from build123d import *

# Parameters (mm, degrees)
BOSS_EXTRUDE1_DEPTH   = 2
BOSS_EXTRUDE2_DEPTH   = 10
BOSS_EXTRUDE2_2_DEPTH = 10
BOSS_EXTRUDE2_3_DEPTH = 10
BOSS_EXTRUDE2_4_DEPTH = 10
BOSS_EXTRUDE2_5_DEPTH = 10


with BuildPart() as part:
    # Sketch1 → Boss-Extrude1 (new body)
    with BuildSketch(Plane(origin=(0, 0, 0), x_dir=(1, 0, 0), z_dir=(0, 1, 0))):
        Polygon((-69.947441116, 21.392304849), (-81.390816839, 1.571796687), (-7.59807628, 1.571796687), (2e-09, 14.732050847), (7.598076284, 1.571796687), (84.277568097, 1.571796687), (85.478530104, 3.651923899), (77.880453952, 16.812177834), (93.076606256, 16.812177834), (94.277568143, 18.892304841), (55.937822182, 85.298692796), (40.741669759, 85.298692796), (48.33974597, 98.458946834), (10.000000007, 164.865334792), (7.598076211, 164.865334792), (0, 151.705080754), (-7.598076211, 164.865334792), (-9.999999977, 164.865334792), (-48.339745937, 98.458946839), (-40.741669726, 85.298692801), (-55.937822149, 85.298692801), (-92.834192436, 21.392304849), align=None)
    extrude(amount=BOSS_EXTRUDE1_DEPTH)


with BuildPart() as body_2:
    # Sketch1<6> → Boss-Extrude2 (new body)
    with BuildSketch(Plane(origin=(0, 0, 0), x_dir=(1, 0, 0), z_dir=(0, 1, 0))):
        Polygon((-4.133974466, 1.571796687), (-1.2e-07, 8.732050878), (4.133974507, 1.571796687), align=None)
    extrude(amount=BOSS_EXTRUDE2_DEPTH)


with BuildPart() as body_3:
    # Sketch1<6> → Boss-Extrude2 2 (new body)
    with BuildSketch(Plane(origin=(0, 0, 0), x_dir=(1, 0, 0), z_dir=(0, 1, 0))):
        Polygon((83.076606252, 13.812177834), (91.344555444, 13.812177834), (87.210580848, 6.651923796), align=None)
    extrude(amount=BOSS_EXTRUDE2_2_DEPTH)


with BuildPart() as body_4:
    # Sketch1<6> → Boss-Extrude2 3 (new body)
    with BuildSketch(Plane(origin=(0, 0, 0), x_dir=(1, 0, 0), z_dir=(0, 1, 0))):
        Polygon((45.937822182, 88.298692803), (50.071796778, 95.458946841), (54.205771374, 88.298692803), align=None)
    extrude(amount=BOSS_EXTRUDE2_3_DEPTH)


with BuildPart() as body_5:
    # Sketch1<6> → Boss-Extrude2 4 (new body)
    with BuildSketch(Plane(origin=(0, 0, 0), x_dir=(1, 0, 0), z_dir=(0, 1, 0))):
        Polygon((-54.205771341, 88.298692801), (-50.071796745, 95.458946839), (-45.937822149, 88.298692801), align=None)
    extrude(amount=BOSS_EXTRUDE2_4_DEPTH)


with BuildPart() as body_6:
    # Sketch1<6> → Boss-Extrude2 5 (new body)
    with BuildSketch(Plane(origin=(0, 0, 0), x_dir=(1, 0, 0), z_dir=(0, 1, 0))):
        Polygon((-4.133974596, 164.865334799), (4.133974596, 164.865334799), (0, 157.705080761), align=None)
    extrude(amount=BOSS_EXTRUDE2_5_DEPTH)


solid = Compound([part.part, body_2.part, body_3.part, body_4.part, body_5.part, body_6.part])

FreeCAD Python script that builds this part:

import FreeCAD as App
import Part
import Sketcher

V = App.Vector
Q = App.Units.Quantity


def add_polygon(sketch, points):
    """Adds a closed chain of lines whose ends are joined by coincident constraints."""
    first, n = sketch.GeometryCount, len(points)
    for a, b in zip(points, points[1:] + points[:1]):
        sketch.addGeometry(Part.LineSegment(App.Vector(*a, 0), App.Vector(*b, 0)), False)
    for i in range(n):
        sketch.addConstraint(Sketcher.Constraint("Coincident", first + i, 2, first + (i + 1) % n, 1))

doc = App.newDocument("Part")
params = doc.addObject("Spreadsheet::Sheet", "Params")
for row, (alias, value) in enumerate([
    ("pad1_length", "2 mm"),
    ("pad2_length", "10 mm"),
    ("pad3_length", "10 mm"),
    ("pad4_length", "10 mm"),
    ("pad5_length", "10 mm"),
    ("pad6_length", "10 mm"),
], start=1):
    params.set(f"A{row}", alias)
    params.set(f"B{row}", "=" + value)
    params.setAlias(f"B{row}", alias)

body = doc.addObject("PartDesign::Body", "Body")

sketch1 = body.newObject("Sketcher::SketchObject", "Sketch")
sketch1.AttachmentSupport = (doc.getObject("XZ_Plane"), [""])
sketch1.MapMode = "FlatFace"
add_polygon(sketch1, [(-69.9, -21.4), (-81.4, -1.6), (-7.6, -1.6), (0, -14.7), (7.6, -1.6), (84.3, -1.6), (85.5, -3.7), (77.9, -16.8), (93.1, -16.8), (94.3, -18.9), (55.9, -85.3), (40.7, -85.3), (48.3, -98.5), (10, -164.9), (7.6, -164.9), (0, -151.7), (-7.6, -164.9), (-10, -164.9), (-48.3, -98.5), (-40.7, -85.3), (-55.9, -85.3), (-92.8, -21.4)])
sketch1.addConstraint([
    Sketcher.Constraint("Horizontal", 1),
    Sketcher.Constraint("Horizontal", 4),
    Sketcher.Constraint("Horizontal", 7),
    Sketcher.Constraint("Horizontal", 10),
    Sketcher.Constraint("Horizontal", 13),
    Sketcher.Constraint("Horizontal", 16),
    Sketcher.Constraint("Horizontal", 19),
    Sketcher.Constraint("Horizontal", 21),
    Sketcher.Constraint("Symmetric", 1, 2, 3, 2, -2),
    Sketcher.Constraint("Symmetric", 13, 2, 15, 2, -2),
    Sketcher.Constraint("Symmetric", 11, 2, 17, 2, -2),
    Sketcher.Constraint("Symmetric", 10, 2, 18, 2, -2),
    Sketcher.Constraint("PointOnObject", 2, 2, -2),
    Sketcher.Constraint("PointOnObject", 14, 2, -2),
    Sketcher.Constraint("Parallel", 0, 2),
    Sketcher.Constraint("Parallel", 2, 5),
    Sketcher.Constraint("Parallel", 3, 6),
    Sketcher.Constraint("Parallel", 5, 8),
    Sketcher.Constraint("Parallel", 6, 9),
    Sketcher.Constraint("Parallel", 8, 11),
    Sketcher.Constraint("Parallel", 9, 12),
    Sketcher.Constraint("Parallel", 11, 14),
    Sketcher.Constraint("Parallel", 14, 17),
    Sketcher.Constraint("Parallel", 17, 20),
    Sketcher.Constraint("Vertical", 3, 2, 13, 2),
    Sketcher.Constraint("Equal", 7, 10),
    Sketcher.Constraint("Equal", 10, 19),
    Sketcher.Constraint("Equal", 3, 6),
    Sketcher.Constraint("Equal", 5, 8),
    Sketcher.Constraint("Equal", 6, 11),
    Sketcher.Constraint("Equal", 9, 12),
    Sketcher.Constraint("Angle", 0, Q("120 deg")),
    Sketcher.Constraint("DistanceX", -1, 1, 12, 2, Q("10 mm")),
    Sketcher.Constraint("DistanceX", 4, 2, 8, 2, Q("10 mm")),
    Sketcher.Constraint("DistanceX", 1, 1, 1, 2, Q("73.792741 mm")),
    Sketcher.Constraint("DistanceX", 4, 1, 4, 2, Q("76.679492 mm")),
    Sketcher.Constraint("DistanceX", 21, 1, 21, 2, Q("22.886751 mm")),
    Sketcher.Constraint("DistanceX", 10, 2, 8, 2, Q("53.535898 mm")),
    Sketcher.Constraint("Distance", 0, Q("22.886751 mm")),
    Sketcher.Constraint("DistanceY", 2, 2, -1, 1, Q("14.732051 mm")),
])
pad1 = body.newObject("PartDesign::Pad", "Pad")
pad1.Profile = sketch1
pad1.setExpression("Length", "Params.pad1_length")
pad1.Reversed = True
body2 = doc.addObject("PartDesign::Body", "Body001")

sketch2 = body2.newObject("Sketcher::SketchObject", "Sketch001")
sketch2.AttachmentSupport = (doc.getObject("XZ_Plane001"), [""])
sketch2.MapMode = "FlatFace"
add_polygon(sketch2, [(0, -9), (-4, -2), (4, -2)])
sketch2.addConstraint([
    Sketcher.Constraint("Horizontal", 1),
    Sketcher.Constraint("PointOnObject", 2, 2, -2),
    Sketcher.Constraint("Equal", 0, 2),
    Sketcher.Constraint("Angle", 0, Q("119.999998 deg")),
    Sketcher.Constraint("DistanceX", 1, 1, 1, 2, Q("8.267949 mm")),
    Sketcher.Constraint("DistanceY", 2, 2, -1, 1, Q("8.732051 mm")),
])
pad2 = body2.newObject("PartDesign::Pad", "Pad001")
pad2.Profile = sketch2
pad2.setExpression("Length", "Params.pad2_length")
pad2.Reversed = True
body3 = doc.addObject("PartDesign::Body", "Body002")

sketch3 = body3.newObject("Sketcher::SketchObject", "Sketch002")
sketch3.AttachmentSupport = (doc.getObject("XZ_Plane002"), [""])
sketch3.MapMode = "FlatFace"
add_polygon(sketch3, [(91, -14), (83, -14), (87, -7)])
sketch3.addConstraint([
    Sketcher.Constraint("Horizontal", 0),
    Sketcher.Constraint("Equal", 1, 2),
    Sketcher.Constraint("Angle", 1, Q("60 deg")),
    Sketcher.Constraint("DistanceX", 0, 2, 0, 1, Q("8.267949 mm")),
    Sketcher.Constraint("DistanceX", -1, 1, 1, 2, Q("87.210581 mm")),
    Sketcher.Constraint("DistanceY", 0, 2, -1, 1, Q("13.812178 mm")),
])
pad3 = body3.newObject("PartDesign::Pad", "Pad002")
pad3.Profile = sketch3
pad3.setExpression("Length", "Params.pad3_length")
pad3.Reversed = True
body4 = doc.addObject("PartDesign::Body", "Body003")

sketch4 = body4.newObject("Sketcher::SketchObject", "Sketch003")
sketch4.AttachmentSupport = (doc.getObject("XZ_Plane003"), [""])
sketch4.MapMode = "FlatFace"
add_polygon(sketch4, [(50, -95), (46, -88), (54, -88)])
sketch4.addConstraint([
    Sketcher.Constraint("Horizontal", 1),
    Sketcher.Constraint("Equal", 0, 2),
    Sketcher.Constraint("Angle", 0, Q("120 deg")),
    Sketcher.Constraint("DistanceX", 1, 1, 1, 2, Q("8.267949 mm")),
    Sketcher.Constraint("DistanceX", -1, 1, 1, 2, Q("54.205771 mm")),
    Sketcher.Constraint("DistanceY", 0, 2, -1, 1, Q("88.298693 mm")),
])
pad4 = body4.newObject("PartDesign::Pad", "Pad003")
pad4.Profile = sketch4
pad4.setExpression("Length", "Params.pad4_length")
pad4.Reversed = True
body5 = doc.addObject("PartDesign::Body", "Body004")

sketch5 = body5.newObject("Sketcher::SketchObject", "Sketch004")
sketch5.AttachmentSupport = (doc.getObject("XZ_Plane004"), [""])
sketch5.MapMode = "FlatFace"
add_polygon(sketch5, [(-50, -95), (-54, -88), (-46, -88)])
sketch5.addConstraint([
    Sketcher.Constraint("Horizontal", 1),
    Sketcher.Constraint("Equal", 0, 2),
    Sketcher.Constraint("Angle", 0, Q("120 deg")),
    Sketcher.Constraint("DistanceX", 1, 1, 1, 2, Q("8.267949 mm")),
    Sketcher.Constraint("DistanceX", 0, 2, -1, 1, Q("54.205771 mm")),
    Sketcher.Constraint("DistanceY", 0, 2, -1, 1, Q("88.298693 mm")),
])
pad5 = body5.newObject("PartDesign::Pad", "Pad004")
pad5.Profile = sketch5
pad5.setExpression("Length", "Params.pad5_length")
pad5.Reversed = True
body6 = doc.addObject("PartDesign::Body", "Body005")

sketch6 = body6.newObject("Sketcher::SketchObject", "Sketch005")
sketch6.AttachmentSupport = (doc.getObject("XZ_Plane005"), [""])
sketch6.MapMode = "FlatFace"
add_polygon(sketch6, [(4, -165), (-4, -165), (0, -158)])
sketch6.addConstraint([
    Sketcher.Constraint("Horizontal", 0),
    Sketcher.Constraint("PointOnObject", 1, 2, -2),
    Sketcher.Constraint("Equal", 1, 2),
    Sketcher.Constraint("Angle", 1, Q("60 deg")),
    Sketcher.Constraint("DistanceX", 0, 2, 0, 1, Q("8.267949 mm")),
    Sketcher.Constraint("DistanceY", 1, 2, -1, 1, Q("157.705081 mm")),
])
pad6 = body6.newObject("PartDesign::Pad", "Pad005")
pad6.Profile = sketch6
pad6.setExpression("Length", "Params.pad6_length")
pad6.Reversed = True

doc.recompute()
